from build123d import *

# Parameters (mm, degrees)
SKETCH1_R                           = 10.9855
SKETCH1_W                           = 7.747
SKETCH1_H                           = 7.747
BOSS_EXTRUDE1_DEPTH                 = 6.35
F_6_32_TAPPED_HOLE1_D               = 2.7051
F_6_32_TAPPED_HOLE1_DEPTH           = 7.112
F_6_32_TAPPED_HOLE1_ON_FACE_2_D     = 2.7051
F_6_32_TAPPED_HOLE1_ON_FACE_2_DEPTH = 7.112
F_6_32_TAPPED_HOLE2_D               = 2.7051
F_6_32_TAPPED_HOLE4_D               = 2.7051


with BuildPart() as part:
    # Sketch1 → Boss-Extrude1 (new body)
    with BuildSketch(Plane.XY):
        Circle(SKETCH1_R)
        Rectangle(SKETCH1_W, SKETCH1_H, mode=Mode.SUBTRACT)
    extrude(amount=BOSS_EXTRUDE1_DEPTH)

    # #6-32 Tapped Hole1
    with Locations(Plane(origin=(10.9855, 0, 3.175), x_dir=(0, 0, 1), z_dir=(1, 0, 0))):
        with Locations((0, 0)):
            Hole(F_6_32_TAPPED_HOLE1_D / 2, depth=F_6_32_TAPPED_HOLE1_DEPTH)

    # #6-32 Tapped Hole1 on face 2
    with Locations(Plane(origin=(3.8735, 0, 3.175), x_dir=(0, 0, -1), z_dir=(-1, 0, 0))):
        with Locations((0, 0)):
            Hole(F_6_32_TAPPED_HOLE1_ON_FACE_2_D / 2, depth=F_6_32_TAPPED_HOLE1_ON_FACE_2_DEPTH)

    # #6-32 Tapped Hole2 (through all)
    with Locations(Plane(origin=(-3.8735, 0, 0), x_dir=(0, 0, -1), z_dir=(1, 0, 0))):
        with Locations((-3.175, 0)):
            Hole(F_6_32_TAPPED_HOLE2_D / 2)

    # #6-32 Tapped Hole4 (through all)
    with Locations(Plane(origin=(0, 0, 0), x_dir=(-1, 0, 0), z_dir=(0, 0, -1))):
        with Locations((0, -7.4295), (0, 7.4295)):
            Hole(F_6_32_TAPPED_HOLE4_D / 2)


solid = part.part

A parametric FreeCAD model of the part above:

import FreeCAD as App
import Part
import Sketcher
from FreeCAD import Vector
Q = App.Units.Quantity

doc = App.newDocument("Part")
body = doc.addObject("PartDesign::Body", "Body")

sketch1 = doc.addObject("Sketcher::SketchObject", "Sketch")
body.addObject(sketch1)
sketch1.AttachmentSupport = (doc.XY_Plane, [""])
sketch1.MapMode = "FlatFace"
sketch1.addGeometry([
    Part.Circle(Vector(0, 0, 0), Vector(0, 0, 1), 10.9855),
    Part.LineSegment(Vector(3.8735, -3.8735, 0), Vector(-3.8735, -3.8735, 0)),
    Part.LineSegment(Vector(-3.8735, -3.8735, 0), Vector(-3.8735, 3.8735, 0)),
    Part.LineSegment(Vector(-3.8735, 3.8735, 0), Vector(3.8735, 3.8735, 0)),
    Part.LineSegment(Vector(3.8735, 3.8735, 0), Vector(3.8735, -3.8735, 0)),
], False)
sketch1.addConstraint([
    Sketcher.Constraint("Coincident", 1, 2, 2, 1),
    Sketcher.Constraint("Coincident", 2, 2, 3, 1),
    Sketcher.Constraint("Coincident", 3, 2, 4, 1),
    Sketcher.Constraint("Coincident", 4, 2, 1, 1),
    Sketcher.Constraint("Horizontal", 1),
    Sketcher.Constraint("Vertical", 2),
    Sketcher.Constraint("Horizontal", 3),
    Sketcher.Constraint("Vertical", 4),
    Sketcher.Constraint("Coincident", 0, 3, -1, 1),
    Sketcher.Constraint("Symmetric", 1, 2, 3, 2, -1, 1),
    Sketcher.Constraint("Equal", 3, 2),
    Sketcher.Constraint("Diameter", 0, Q("0.865 in")),
    Sketcher.Constraint("DistanceX", 1, 2, 1, 1, Q("0.305 in")),
])
pad1 = doc.addObject("PartDesign::Pad", "Pad")
body.addObject(pad1)
pad1.Profile = sketch1
pad1.Length = Q("0.25 in")

sketch2 = doc.addObject("Sketcher::SketchObject", "Sketch001")
body.addObject(sketch2)
sketch2.AttachmentSupport = (doc.YZ_Plane, [""])
sketch2.MapMode = "FlatFace"
sketch2.AttachmentOffset = App.Placement(Vector(0, 0, 0.4325 * 25.4), App.Rotation())
sketch2.addGeometry(Part.Circle(Vector(0, 3.175, 0), Vector(0, 0, 1), 1.35255), False)
sketch2.addConstraint([
    Sketcher.Constraint("PointOnObject", 0, 3, -2),
    Sketcher.Constraint("Diameter", 0, Q("0.1065 in")),
    Sketcher.Constraint("DistanceY", -1, 1, 0, 3, Q("0.125 in")),
])
doc.recompute()
hole = doc.addObject("PartDesign::Hole", "Hole")
body.addObject(hole)
hole.Profile = sketch2
hole.ThreadType = "None"
hole.Diameter = Q("0.1065 in")
hole.DepthType = "Dimension"
hole.Depth = Q("0.28 in")
hole.DrillPoint = "Flat"

sketch3 = doc.addObject("Sketcher::SketchObject", "Sketch002")
body.addObject(sketch3)
sketch3.AttachmentSupport = (doc.YZ_Plane, [""])
sketch3.MapMode = "FlatFace"
sketch3.AttachmentOffset = App.Placement(Vector(0, 0, 0.1525 * 25.4), App.Rotation())
sketch3.addGeometry(Part.Circle(Vector(0, 3.175, 0), Vector(0, 0, 1), 1.35255), False)
sketch3.addConstraint([
    Sketcher.Constraint("PointOnObject", 0, 3, -2),
    Sketcher.Constraint("Diameter", 0, Q("0.1065 in")),
    Sketcher.Constraint("DistanceY", -1, 1, 0, 3, Q("0.125 in")),
])
doc.recompute()
hole2 = doc.addObject("PartDesign::Hole", "Hole001")
body.addObject(hole2)
hole2.Profile = sketch3
hole2.ThreadType = "None"
hole2.Diameter = Q("0.1065 in")
hole2.DepthType = "Dimension"
hole2.Depth = Q("0.28 in")
hole2.DrillPoint = "Flat"
hole2.Reversed = True

sketch4 = doc.addObject("Sketcher::SketchObject", "Sketch003")
body.addObject(sketch4)
sketch4.AttachmentSupport = (doc.YZ_Plane, [""])
sketch4.MapMode = "FlatFace"
sketch4.AttachmentOffset = App.Placement(Vector(0, 0, -0.1525 * 25.4), App.Rotation())
sketch4.addGeometry(Part.Circle(Vector(0, 3.175, 0), Vector(0, 0, 1), 1.35255), False)
sketch4.addConstraint([
    Sketcher.Constraint("PointOnObject", 0, 3, -2),
    Sketcher.Constraint("Diameter", 0, Q("0.1065 in")),
    Sketcher.Constraint("DistanceY", -1, 1, 0, 3, Q("0.125 in")),
])
doc.recompute()
hole3 = doc.addObject("PartDesign::Hole", "Hole002")
body.addObject(hole3)
hole3.Profile = sketch4
hole3.ThreadType = "None"
hole3.Diameter = Q("0.1065 in")
hole3.DepthType = "ThroughAll"

sketch5 = doc.addObject("Sketcher::SketchObject", "Sketch004")
body.addObject(sketch5)
sketch5.AttachmentSupport = (doc.XY_Plane, [""])
sketch5.MapMode = "FlatFace"
sketch5.addGeometry([
    Part.Circle(Vector(0, -7.4295, 0), Vector(0, 0, 1), 1.35255),
    Part.Circle(Vector(0, 7.4295, 0), Vector(0, 0, 1), 1.35255),
], False)
sketch5.addConstraint([
    Sketcher.Constraint("Equal", 0, 1),
    Sketcher.Constraint("Symmetric", 0, 3, 1, 3, -1, 1),
    Sketcher.Constraint("PointOnObject", 0, 3, -2),
    Sketcher.Constraint("Diameter", 0, Q("0.1065 in")),
    Sketcher.Constraint("DistanceY", 0, 3, 1, 3, Q("0.585 in")),
])
doc.recompute()
hole4 = doc.addObject("PartDesign::Hole", "Hole003")
body.addObject(hole4)
hole4.Profile = sketch5
hole4.ThreadType = "None"
hole4.Diameter = Q("0.1065 in")
hole4.DepthType = "ThroughAll"
hole4.Reversed = True

doc.recompute()
